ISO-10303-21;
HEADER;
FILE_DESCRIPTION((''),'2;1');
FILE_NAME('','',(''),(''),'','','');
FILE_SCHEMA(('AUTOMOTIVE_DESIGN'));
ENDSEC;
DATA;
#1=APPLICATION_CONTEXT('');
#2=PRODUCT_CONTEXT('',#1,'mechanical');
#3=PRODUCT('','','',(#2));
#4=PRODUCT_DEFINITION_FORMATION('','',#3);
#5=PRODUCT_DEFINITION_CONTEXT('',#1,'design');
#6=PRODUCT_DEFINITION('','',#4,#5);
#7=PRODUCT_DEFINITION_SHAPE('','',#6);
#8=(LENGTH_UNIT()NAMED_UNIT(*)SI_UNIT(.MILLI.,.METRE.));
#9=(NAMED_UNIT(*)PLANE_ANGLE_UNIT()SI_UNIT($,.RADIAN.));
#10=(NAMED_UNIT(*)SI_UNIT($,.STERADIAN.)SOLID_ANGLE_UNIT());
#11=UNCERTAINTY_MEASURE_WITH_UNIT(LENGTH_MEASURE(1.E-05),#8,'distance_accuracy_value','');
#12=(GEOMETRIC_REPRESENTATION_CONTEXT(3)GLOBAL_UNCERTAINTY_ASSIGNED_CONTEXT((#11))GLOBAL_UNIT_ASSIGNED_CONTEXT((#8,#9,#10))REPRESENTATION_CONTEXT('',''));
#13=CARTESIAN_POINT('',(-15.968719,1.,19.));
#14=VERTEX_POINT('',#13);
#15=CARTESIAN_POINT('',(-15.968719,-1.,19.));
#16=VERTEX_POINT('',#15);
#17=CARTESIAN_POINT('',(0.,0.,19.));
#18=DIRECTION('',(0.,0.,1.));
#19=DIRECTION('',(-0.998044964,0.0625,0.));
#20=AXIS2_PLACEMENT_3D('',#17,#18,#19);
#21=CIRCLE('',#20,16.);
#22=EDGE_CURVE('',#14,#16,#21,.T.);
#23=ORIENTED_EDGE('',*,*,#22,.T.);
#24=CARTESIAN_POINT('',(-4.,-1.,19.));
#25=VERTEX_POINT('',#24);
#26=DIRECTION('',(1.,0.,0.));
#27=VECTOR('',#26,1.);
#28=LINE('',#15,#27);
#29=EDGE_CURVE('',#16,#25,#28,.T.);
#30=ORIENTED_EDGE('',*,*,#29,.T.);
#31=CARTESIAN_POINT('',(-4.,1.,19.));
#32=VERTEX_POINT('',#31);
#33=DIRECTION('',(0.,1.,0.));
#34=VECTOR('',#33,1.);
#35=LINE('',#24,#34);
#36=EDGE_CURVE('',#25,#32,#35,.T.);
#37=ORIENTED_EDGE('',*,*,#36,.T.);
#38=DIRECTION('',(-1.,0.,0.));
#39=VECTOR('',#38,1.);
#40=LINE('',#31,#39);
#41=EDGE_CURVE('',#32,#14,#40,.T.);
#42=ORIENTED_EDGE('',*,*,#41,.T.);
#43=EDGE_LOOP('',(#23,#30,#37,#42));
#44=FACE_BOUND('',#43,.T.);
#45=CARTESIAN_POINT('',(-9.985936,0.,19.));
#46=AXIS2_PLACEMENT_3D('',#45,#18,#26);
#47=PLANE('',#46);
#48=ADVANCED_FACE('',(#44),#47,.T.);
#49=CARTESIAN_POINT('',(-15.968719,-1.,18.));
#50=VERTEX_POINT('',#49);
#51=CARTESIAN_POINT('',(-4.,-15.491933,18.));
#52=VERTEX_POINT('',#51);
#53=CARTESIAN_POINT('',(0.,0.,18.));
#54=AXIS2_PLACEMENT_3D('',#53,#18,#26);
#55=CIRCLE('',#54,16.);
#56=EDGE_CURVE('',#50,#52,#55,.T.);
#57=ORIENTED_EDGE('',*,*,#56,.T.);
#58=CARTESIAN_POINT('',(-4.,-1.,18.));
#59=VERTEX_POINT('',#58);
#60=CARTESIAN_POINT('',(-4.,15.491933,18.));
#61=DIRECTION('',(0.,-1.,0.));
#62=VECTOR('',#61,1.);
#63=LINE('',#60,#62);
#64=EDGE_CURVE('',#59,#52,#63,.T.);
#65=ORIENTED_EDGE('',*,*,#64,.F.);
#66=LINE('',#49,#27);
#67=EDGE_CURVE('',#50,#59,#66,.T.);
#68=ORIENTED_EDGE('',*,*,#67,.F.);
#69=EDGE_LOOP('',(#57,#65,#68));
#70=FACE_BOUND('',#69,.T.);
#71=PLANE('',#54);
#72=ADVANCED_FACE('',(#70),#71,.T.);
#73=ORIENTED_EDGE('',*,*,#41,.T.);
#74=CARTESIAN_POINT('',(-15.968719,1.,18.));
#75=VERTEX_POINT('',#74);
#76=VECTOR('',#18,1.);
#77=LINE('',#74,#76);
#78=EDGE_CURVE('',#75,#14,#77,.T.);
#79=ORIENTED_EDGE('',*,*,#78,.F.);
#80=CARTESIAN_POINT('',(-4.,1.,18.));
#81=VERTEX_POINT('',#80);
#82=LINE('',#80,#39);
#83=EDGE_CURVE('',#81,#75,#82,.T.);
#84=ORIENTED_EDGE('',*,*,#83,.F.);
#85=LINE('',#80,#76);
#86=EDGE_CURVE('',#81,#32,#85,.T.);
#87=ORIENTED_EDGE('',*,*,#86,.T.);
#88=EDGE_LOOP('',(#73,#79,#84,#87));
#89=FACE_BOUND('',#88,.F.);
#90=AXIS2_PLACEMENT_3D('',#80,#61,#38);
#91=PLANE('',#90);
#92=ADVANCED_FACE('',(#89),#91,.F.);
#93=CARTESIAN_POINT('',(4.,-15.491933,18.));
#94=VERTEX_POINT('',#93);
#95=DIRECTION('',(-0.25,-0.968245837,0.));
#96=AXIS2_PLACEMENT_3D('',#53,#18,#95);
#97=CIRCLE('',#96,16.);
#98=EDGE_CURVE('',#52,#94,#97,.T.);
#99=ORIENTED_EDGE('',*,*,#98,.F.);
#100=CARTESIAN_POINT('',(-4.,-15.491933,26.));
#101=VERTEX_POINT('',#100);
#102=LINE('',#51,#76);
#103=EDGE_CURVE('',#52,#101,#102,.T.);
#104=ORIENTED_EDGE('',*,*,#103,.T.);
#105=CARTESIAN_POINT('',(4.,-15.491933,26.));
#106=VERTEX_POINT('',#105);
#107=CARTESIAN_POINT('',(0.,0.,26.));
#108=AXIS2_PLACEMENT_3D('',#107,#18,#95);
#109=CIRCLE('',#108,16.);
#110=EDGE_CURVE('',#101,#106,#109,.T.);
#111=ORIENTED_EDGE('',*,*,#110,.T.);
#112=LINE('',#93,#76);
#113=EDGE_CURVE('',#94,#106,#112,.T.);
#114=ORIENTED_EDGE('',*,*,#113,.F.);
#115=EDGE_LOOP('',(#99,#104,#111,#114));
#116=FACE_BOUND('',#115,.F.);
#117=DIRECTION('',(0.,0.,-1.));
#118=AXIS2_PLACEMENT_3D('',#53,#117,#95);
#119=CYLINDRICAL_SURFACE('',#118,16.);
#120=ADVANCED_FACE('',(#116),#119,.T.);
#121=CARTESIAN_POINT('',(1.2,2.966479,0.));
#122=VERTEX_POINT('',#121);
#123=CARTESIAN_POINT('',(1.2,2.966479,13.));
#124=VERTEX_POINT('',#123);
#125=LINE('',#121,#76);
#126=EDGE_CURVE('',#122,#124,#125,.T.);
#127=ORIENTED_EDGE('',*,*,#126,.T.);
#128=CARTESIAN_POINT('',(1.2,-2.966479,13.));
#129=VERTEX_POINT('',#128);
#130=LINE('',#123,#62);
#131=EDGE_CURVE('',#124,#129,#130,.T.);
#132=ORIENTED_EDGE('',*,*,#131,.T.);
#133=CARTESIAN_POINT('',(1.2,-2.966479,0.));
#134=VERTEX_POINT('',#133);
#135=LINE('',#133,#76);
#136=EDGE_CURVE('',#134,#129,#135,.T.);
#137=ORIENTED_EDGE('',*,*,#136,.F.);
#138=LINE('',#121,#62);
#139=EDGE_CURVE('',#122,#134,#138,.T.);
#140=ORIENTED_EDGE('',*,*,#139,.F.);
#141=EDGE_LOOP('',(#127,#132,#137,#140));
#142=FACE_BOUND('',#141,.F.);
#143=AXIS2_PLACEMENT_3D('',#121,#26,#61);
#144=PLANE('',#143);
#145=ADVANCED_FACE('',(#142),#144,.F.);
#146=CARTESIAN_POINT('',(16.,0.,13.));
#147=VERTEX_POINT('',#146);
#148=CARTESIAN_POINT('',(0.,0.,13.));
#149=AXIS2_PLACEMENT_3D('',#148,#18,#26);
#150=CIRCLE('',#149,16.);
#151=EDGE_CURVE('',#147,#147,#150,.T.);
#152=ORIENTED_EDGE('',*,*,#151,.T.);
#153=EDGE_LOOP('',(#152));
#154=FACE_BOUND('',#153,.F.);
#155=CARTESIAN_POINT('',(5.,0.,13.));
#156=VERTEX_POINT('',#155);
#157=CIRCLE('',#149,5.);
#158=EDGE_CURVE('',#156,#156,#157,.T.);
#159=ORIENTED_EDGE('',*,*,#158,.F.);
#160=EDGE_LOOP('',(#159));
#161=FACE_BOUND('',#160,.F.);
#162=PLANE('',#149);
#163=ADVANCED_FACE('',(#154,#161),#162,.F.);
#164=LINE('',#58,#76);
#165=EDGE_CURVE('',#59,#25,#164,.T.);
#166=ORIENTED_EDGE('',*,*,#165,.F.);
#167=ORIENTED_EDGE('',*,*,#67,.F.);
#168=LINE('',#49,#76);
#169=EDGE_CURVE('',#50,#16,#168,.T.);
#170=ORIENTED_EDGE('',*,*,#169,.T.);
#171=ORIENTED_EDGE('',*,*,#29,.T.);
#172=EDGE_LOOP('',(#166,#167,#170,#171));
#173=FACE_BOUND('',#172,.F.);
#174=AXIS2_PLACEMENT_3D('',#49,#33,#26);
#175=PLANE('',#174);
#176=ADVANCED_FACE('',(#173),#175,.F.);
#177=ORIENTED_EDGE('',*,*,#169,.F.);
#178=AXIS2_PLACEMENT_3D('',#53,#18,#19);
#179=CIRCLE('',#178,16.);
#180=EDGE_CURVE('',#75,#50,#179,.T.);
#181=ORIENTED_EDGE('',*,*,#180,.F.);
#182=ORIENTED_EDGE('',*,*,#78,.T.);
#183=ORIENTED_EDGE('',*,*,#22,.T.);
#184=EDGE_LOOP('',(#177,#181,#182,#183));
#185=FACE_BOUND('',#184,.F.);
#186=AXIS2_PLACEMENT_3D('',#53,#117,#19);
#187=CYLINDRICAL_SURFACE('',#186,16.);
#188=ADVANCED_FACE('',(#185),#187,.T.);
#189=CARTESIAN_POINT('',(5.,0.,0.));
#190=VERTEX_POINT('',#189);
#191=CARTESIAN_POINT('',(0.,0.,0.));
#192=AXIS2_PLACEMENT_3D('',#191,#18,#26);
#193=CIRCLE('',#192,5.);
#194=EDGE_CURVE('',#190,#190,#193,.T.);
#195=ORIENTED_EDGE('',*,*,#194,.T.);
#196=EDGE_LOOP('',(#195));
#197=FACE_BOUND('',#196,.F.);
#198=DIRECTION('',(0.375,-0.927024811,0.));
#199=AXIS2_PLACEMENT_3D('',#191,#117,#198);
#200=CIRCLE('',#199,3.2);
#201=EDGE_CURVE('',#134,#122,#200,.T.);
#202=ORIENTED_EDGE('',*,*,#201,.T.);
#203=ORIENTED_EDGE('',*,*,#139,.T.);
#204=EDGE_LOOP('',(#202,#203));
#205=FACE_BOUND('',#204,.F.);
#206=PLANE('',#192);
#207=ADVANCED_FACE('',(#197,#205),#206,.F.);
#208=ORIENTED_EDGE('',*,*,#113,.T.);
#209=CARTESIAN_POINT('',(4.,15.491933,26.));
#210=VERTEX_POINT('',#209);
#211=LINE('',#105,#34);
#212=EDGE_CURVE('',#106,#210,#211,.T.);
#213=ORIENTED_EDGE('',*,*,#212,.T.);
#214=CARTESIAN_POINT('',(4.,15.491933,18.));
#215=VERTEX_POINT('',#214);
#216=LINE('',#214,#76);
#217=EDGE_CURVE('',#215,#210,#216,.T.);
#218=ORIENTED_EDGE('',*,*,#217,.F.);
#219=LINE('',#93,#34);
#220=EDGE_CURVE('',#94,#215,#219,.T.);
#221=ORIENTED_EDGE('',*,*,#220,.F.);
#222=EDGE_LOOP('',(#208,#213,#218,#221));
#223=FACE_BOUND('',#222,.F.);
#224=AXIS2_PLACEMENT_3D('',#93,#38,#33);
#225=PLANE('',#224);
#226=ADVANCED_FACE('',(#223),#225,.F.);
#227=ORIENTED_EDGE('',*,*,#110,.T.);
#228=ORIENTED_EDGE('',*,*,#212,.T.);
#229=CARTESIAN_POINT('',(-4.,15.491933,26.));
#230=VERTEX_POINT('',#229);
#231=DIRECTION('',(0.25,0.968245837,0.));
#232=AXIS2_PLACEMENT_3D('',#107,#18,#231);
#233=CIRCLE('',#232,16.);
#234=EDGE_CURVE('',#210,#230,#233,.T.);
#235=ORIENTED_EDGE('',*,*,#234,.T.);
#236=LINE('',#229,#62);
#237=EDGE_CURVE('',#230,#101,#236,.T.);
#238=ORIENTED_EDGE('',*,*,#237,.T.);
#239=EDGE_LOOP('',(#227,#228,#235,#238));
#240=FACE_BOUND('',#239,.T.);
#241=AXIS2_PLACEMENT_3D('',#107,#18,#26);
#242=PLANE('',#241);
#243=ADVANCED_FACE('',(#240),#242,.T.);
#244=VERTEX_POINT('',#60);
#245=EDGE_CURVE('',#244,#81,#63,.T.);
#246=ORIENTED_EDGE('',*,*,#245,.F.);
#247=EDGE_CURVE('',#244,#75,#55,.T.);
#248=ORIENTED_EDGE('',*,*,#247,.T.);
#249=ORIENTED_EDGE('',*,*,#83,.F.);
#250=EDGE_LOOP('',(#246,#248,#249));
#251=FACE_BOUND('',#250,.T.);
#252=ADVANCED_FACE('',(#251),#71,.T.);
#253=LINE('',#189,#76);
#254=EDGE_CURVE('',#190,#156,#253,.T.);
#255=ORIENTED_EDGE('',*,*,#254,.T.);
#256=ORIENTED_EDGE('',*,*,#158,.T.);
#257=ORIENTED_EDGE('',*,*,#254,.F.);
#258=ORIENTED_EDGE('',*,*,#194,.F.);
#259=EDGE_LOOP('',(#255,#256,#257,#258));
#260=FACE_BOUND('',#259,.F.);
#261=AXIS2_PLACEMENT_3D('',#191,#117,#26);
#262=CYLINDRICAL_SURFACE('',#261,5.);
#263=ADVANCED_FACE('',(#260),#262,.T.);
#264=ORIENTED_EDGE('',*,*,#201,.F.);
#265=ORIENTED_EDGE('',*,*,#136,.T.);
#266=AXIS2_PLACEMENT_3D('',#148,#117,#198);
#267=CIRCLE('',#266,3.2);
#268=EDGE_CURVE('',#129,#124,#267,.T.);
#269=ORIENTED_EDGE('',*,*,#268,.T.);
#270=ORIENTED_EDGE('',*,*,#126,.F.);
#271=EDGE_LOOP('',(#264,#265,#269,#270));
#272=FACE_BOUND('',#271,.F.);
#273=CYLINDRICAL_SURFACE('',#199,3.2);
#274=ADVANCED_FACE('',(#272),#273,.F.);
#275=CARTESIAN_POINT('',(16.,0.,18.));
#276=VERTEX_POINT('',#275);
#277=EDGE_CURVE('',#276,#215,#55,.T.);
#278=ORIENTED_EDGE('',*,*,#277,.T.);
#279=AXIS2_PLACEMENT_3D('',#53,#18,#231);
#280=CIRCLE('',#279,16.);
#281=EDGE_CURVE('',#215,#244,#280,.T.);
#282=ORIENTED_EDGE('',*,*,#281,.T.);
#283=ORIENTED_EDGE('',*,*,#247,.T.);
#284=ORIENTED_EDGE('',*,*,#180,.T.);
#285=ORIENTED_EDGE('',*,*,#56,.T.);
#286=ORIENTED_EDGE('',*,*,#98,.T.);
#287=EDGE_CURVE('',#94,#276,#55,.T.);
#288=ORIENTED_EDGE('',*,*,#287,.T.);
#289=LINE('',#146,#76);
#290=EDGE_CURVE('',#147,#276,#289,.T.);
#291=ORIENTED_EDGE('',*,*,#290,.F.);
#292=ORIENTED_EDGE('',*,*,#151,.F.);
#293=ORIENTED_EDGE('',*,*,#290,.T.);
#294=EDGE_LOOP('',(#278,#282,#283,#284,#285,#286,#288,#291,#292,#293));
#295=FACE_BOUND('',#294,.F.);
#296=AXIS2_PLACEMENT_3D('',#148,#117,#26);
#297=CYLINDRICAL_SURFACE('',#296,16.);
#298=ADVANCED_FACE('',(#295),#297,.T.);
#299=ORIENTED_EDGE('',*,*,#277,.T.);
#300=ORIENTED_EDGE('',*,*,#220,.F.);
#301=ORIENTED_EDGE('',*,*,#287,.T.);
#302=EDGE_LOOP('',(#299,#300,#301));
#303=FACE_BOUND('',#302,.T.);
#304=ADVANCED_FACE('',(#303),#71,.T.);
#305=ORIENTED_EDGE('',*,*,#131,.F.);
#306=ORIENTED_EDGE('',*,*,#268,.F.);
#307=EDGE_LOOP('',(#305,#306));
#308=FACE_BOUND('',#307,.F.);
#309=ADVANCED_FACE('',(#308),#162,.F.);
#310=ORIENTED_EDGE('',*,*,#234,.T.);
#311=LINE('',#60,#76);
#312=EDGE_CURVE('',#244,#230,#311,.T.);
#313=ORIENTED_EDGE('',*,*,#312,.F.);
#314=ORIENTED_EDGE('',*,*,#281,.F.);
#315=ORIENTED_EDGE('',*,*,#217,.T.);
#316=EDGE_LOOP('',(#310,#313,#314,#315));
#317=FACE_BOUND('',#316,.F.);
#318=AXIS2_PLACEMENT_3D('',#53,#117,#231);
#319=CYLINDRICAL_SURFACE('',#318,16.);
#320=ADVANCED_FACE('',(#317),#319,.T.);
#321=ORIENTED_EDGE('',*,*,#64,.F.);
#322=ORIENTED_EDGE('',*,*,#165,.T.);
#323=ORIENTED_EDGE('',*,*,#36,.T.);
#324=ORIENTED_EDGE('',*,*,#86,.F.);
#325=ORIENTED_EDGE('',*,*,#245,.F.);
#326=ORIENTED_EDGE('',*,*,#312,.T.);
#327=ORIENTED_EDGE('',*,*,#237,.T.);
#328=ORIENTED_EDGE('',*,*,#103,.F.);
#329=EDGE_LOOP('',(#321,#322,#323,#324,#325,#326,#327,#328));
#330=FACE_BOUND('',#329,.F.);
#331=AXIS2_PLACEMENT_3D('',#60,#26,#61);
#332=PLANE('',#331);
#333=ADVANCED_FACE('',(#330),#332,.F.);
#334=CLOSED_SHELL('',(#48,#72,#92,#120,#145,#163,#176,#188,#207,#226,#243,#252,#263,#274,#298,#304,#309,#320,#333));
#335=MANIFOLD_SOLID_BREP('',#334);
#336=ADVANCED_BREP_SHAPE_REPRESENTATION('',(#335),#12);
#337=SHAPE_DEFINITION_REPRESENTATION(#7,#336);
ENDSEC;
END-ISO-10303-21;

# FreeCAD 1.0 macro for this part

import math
import FreeCAD as App
import Part
import Sketcher

doc = App.newDocument("Part")
body = doc.addObject("PartDesign::Body", "Body")

# Sketch on XY plane
sketch1 = doc.addObject("Sketcher::SketchObject", "Sketch")
body.addObject(sketch1)
sketch1.AttachmentSupport = (doc.XY_Plane, [""])
sketch1.MapMode = "FlatFace"
sketch1.addGeometry([
    Part.Circle(App.Vector(0, 0, 0), App.Vector(0, 0, 1), 5),
    Part.LineSegment(App.Vector(1.2, 3, 0), App.Vector(1.2, -3, 0)),
    Part.ArcOfCircle(Part.Circle(App.Vector(0, 0, 0), App.Vector(0, 0, 1), 3.2), math.radians(68), math.radians(292)),
], False)
sketch1.addConstraint([
    Sketcher.Constraint("Coincident", 1, 1, 2, 1),
    Sketcher.Constraint("Coincident", 2, 2, 1, 2),
    Sketcher.Constraint("Vertical", 1),
    Sketcher.Constraint("Coincident", 0, 3, -1, 1),
    Sketcher.Constraint("Coincident", 2, 3, -1, 1),
    Sketcher.Constraint("Diameter", 0, 10.0),
    Sketcher.Constraint("Radius", 2, 3.2),
    Sketcher.Constraint("DistanceX", -1, 1, 1, 1, 1.2),
])
pad1 = doc.addObject("PartDesign::Pad", "Pad")
body.addObject(pad1)
pad1.Profile = sketch1
pad1.Length = 13

# Sketch on XY plane
sketch2 = doc.addObject("Sketcher::SketchObject", "Sketch001")
body.addObject(sketch2)
sketch2.AttachmentSupport = (doc.XY_Plane, [""])
sketch2.MapMode = "FlatFace"
sketch2.AttachmentOffset = App.Placement(App.Vector(0, 0, 13), App.Rotation())
sketch2.addGeometry(Part.Circle(App.Vector(0, 0, 0), App.Vector(0, 0, 1), 16), False)
sketch2.addConstraint([
    Sketcher.Constraint("Coincident", 0, 3, -1, 1),
    Sketcher.Constraint("Diameter", 0, 32.0),
])
pad2 = doc.addObject("PartDesign::Pad", "Pad001")
body.addObject(pad2)
pad2.Profile = sketch2
pad2.Length = 5

# Sketch on XY plane
sketch3 = doc.addObject("Sketcher::SketchObject", "Sketch002")
body.addObject(sketch3)
sketch3.AttachmentSupport = (doc.XY_Plane, [""])
sketch3.MapMode = "FlatFace"
sketch3.AttachmentOffset = App.Placement(App.Vector(0, 0, 18), App.Rotation())
sketch3.addGeometry([
    Part.ArcOfCircle(Part.Circle(App.Vector(0, 0, 0), App.Vector(0, 0, 1), 16), math.radians(76), math.radians(104)),
    Part.LineSegment(App.Vector(-4, 15, 0), App.Vector(-4, -15, 0)),
    Part.ArcOfCircle(Part.Circle(App.Vector(0, 0, 0), App.Vector(0, 0, 1), 16), math.radians(-104), math.radians(-76)),
    Part.LineSegment(App.Vector(4, -15, 0), App.Vector(4, 15, 0)),
], False)
sketch3.addConstraint([
    Sketcher.Constraint("Coincident", 0, 2, 1, 1),
    Sketcher.Constraint("Coincident", 1, 2, 2, 1),
    Sketcher.Constraint("Coincident", 2, 2, 3, 1),
    Sketcher.Constraint("Coincident", 3, 2, 0, 1),
    Sketcher.Constraint("Vertical", 1),
    Sketcher.Constraint("Vertical", 3),
    Sketcher.Constraint("Coincident", 0, 3, -1, 1),
    Sketcher.Constraint("Coincident", 2, 3, -1, 1),
    Sketcher.Constraint("Equal", 0, 2),
    Sketcher.Constraint("Horizontal", 1, 2, 2, 2),
    Sketcher.Constraint("Radius", 0, 16.0),
    Sketcher.Constraint("DistanceX", 0, 2, -1, 1, 4.0),
])
pad3 = doc.addObject("PartDesign::Pad", "Pad002")
body.addObject(pad3)
pad3.Profile = sketch3
pad3.Length = 8

# Sketch on XY plane
sketch4 = doc.addObject("Sketcher::SketchObject", "Sketch003")
body.addObject(sketch4)
sketch4.AttachmentSupport = (doc.XY_Plane, [""])
sketch4.MapMode = "FlatFace"
sketch4.AttachmentOffset = App.Placement(App.Vector(0, 0, 18), App.Rotation())
sketch4.addGeometry([
    Part.LineSegment(App.Vector(-4, 1, 0), App.Vector(-16, 1, 0)),
    Part.ArcOfCircle(Part.Circle(App.Vector(0, 0, 0), App.Vector(0, 0, 1), 16), math.radians(176.42), math.radians(183.58)),
    Part.LineSegment(App.Vector(-16, -1, 0), App.Vector(-4, -1, 0)),
    Part.LineSegment(App.Vector(-4, -1, 0), App.Vector(-4, 1, 0)),
], False)
sketch4.addConstraint([
    Sketcher.Constraint("Coincident", 0, 2, 1, 1),
    Sketcher.Constraint("Coincident", 1, 2, 2, 1),
    Sketcher.Constraint("Coincident", 2, 2, 3, 1),
    Sketcher.Constraint("Coincident", 3, 2, 0, 1),
    Sketcher.Constraint("Horizontal", 0),
    Sketcher.Constraint("Horizontal", 2),
    Sketcher.Constraint("Vertical", 3),
    Sketcher.Constraint("Coincident", 1, 3, -1, 1),
    Sketcher.Constraint("Vertical", 0, 2, 1, 2),
    Sketcher.Constraint("Radius", 1, 16.0),
    Sketcher.Constraint("DistanceY", 3, 1, 3, 2, 2.0),
    Sketcher.Constraint("DistanceX", 2, 2, -1, 1, 4.0),
])
pad4 = doc.addObject("PartDesign::Pad", "Pad003")
body.addObject(pad4)
pad4.Profile = sketch4
pad4.Length = 1

doc.recompute()
